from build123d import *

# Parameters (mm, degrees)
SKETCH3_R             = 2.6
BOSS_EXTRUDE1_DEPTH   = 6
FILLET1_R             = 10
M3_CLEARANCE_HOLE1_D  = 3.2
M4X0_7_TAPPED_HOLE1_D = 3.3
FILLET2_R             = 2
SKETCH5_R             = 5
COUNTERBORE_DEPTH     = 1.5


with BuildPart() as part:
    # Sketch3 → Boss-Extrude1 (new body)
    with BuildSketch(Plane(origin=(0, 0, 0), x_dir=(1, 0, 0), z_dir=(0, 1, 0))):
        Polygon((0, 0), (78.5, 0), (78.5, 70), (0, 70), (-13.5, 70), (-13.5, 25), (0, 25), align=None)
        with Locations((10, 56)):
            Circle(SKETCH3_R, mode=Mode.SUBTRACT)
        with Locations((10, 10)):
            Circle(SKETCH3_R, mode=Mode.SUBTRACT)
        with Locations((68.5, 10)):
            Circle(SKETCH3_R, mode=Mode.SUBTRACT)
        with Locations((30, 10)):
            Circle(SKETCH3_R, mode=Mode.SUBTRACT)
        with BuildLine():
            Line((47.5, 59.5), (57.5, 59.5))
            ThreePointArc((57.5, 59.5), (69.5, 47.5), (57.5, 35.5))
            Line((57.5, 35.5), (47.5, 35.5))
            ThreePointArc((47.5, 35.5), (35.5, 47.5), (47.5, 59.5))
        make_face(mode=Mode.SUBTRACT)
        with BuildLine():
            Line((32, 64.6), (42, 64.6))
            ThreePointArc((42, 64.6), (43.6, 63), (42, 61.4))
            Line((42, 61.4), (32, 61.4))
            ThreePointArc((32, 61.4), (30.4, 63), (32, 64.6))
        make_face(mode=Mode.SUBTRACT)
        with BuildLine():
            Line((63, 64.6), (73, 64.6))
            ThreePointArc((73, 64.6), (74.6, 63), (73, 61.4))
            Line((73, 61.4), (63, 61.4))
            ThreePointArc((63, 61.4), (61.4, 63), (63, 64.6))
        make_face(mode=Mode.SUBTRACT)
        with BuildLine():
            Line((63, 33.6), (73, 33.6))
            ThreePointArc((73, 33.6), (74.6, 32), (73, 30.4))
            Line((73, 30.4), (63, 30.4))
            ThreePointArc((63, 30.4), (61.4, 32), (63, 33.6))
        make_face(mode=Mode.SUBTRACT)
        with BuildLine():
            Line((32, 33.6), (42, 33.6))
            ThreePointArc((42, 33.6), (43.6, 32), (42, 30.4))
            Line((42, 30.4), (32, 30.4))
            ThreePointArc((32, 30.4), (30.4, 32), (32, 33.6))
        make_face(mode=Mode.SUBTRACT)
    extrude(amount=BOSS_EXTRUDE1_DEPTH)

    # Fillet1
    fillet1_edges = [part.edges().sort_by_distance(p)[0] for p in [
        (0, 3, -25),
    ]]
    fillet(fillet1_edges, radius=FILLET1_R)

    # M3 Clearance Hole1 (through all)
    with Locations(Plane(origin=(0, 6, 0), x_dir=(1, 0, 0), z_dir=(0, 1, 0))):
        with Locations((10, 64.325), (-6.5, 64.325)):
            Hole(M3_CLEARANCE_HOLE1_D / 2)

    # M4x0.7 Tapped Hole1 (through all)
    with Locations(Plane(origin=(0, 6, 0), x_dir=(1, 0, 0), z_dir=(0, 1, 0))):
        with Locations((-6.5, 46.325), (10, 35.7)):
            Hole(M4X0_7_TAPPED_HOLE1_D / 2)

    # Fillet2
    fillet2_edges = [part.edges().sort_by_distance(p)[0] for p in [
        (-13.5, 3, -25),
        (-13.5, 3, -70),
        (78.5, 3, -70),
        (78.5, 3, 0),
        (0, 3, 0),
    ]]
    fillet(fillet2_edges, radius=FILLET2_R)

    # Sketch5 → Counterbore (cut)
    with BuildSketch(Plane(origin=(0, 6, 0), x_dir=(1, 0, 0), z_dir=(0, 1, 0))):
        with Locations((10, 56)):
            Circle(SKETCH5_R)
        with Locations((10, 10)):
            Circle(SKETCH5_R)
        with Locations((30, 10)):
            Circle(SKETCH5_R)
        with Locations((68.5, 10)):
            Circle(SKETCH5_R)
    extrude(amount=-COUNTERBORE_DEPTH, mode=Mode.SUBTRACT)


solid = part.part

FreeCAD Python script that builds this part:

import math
import FreeCAD as App
import Part
import Sketcher

V = App.Vector
Q = App.Units.Quantity


def edges_at(feature, points):
    """Names of the edges that pass closest to the given points."""
    edges = feature.Shape.Edges
    near = lambda p: min(range(len(edges)), key=lambda i: edges[i].distToShape(Part.Vertex(*p))[0])
    return sorted({f"Edge{near(p) + 1}" for p in points})


def add_polygon(sketch, points):
    """Adds a closed chain of lines whose ends are joined by coincident constraints."""
    first, n = sketch.GeometryCount, len(points)
    for a, b in zip(points, points[1:] + points[:1]):
        sketch.addGeometry(Part.LineSegment(App.Vector(*a, 0), App.Vector(*b, 0)), False)
    for i in range(n):
        sketch.addConstraint(Sketcher.Constraint("Coincident", first + i, 2, first + (i + 1) % n, 1))

doc = App.newDocument("Part")
body = doc.addObject("PartDesign::Body", "Body")

# Sketch on XZ plane
sketch1 = body.newObject("Sketcher::SketchObject", "Sketch")
sketch1.AttachmentSupport = (doc.getObject("XZ_Plane"), [""])
sketch1.MapMode = "FlatFace"
add_polygon(sketch1, [(0, 0), (78.5, 0), (78.5, -70), (-13.5, -70), (-13.5, -25), (0, -25)])  # lines 0-5
sketch1.addGeometry(Part.Circle(V(10, -10, 0), V(0, 0, 1), 2.6), False)  # 6
sketch1.addGeometry(Part.Circle(V(30, -10, 0), V(0, 0, 1), 2.6), False)  # 7
sketch1.addGeometry(Part.ArcOfCircle(Part.Circle(V(32, -32, 0), V(0, 0, 1), 1.6), math.radians(90), math.radians(270)), False)  # 8
sketch1.addGeometry(Part.LineSegment(V(32, -33.6, 0), V(42, -33.6, 0)), False)  # 9
sketch1.addGeometry(Part.ArcOfCircle(Part.Circle(V(42, -32, 0), V(0, 0, 1), 1.6), math.radians(-90), math.radians(90)), False)  # 10
sketch1.addGeometry(Part.LineSegment(V(42, -30.4, 0), V(32, -30.4, 0)), False)  # 11
sketch1.addGeometry(Part.Circle(V(68.5, -10, 0), V(0, 0, 1), 2.6), False)  # 12
sketch1.addGeometry(Part.ArcOfCircle(Part.Circle(V(63, -32, 0), V(0, 0, 1), 1.6), math.radians(90), math.radians(270)), False)  # 13
sketch1.addGeometry(Part.LineSegment(V(63, -33.6, 0), V(73, -33.6, 0)), False)  # 14
sketch1.addGeometry(Part.ArcOfCircle(Part.Circle(V(73, -32, 0), V(0, 0, 1), 1.6), math.radians(-90), math.radians(90)), False)  # 15
sketch1.addGeometry(Part.LineSegment(V(73, -30.4, 0), V(63, -30.4, 0)), False)  # 16
sketch1.addGeometry(Part.Circle(V(10, -56, 0), V(0, 0, 1), 2.6), False)  # 17
sketch1.addGeometry(Part.ArcOfCircle(Part.Circle(V(32, -63, 0), V(0, 0, 1), 1.6), math.radians(90), math.radians(270)), False)  # 18
sketch1.addGeometry(Part.LineSegment(V(32, -64.6, 0), V(42, -64.6, 0)), False)  # 19
sketch1.addGeometry(Part.ArcOfCircle(Part.Circle(V(42, -63, 0), V(0, 0, 1), 1.6), math.radians(-90), math.radians(90)), False)  # 20
sketch1.addGeometry(Part.LineSegment(V(42, -61.4, 0), V(32, -61.4, 0)), False)  # 21
sketch1.addGeometry(Part.ArcOfCircle(Part.Circle(V(47.5, -47.5, 0), V(0, 0, 1), 12), math.radians(90), math.radians(270)), False)  # 22
sketch1.addGeometry(Part.LineSegment(V(47.5, -59.5, 0), V(57.5, -59.5, 0)), False)  # 23
sketch1.addGeometry(Part.ArcOfCircle(Part.Circle(V(57.5, -47.5, 0), V(0, 0, 1), 12), math.radians(-90), math.radians(90)), False)  # 24
sketch1.addGeometry(Part.LineSegment(V(57.5, -35.5, 0), V(47.5, -35.5, 0)), False)  # 25
sketch1.addGeometry(Part.ArcOfCircle(Part.Circle(V(63, -63, 0), V(0, 0, 1), 1.6), math.radians(90), math.radians(270)), False)  # 26
sketch1.addGeometry(Part.LineSegment(V(63, -64.6, 0), V(73, -64.6, 0)), False)  # 27
sketch1.addGeometry(Part.ArcOfCircle(Part.Circle(V(73, -63, 0), V(0, 0, 1), 1.6), math.radians(-90), math.radians(90)), False)  # 28
sketch1.addGeometry(Part.LineSegment(V(73, -61.4, 0), V(63, -61.4, 0)), False)  # 29
sketch1.addConstraint([
    Sketcher.Constraint("Tangent", 8, 2, 9, 1),
    Sketcher.Constraint("Tangent", 9, 2, 10, 1),
    Sketcher.Constraint("Tangent", 10, 2, 11, 1),
    Sketcher.Constraint("Tangent", 11, 2, 8, 1),
    Sketcher.Constraint("Tangent", 13, 2, 14, 1),
    Sketcher.Constraint("Tangent", 14, 2, 15, 1),
    Sketcher.Constraint("Tangent", 15, 2, 16, 1),
    Sketcher.Constraint("Tangent", 16, 2, 13, 1),
    Sketcher.Constraint("Tangent", 18, 2, 19, 1),
    Sketcher.Constraint("Tangent", 19, 2, 20, 1),
    Sketcher.Constraint("Tangent", 20, 2, 21, 1),
    Sketcher.Constraint("Tangent", 21, 2, 18, 1),
    Sketcher.Constraint("Tangent", 22, 2, 23, 1),
    Sketcher.Constraint("Tangent", 23, 2, 24, 1),
    Sketcher.Constraint("Tangent", 24, 2, 25, 1),
    Sketcher.Constraint("Tangent", 25, 2, 22, 1),
    Sketcher.Constraint("Tangent", 26, 2, 27, 1),
    Sketcher.Constraint("Tangent", 27, 2, 28, 1),
    Sketcher.Constraint("Tangent", 28, 2, 29, 1),
    Sketcher.Constraint("Tangent", 29, 2, 26, 1),
    Sketcher.Constraint("Horizontal", 0),
    Sketcher.Constraint("Vertical", 1),
    Sketcher.Constraint("Horizontal", 2),
    Sketcher.Constraint("Vertical", 3),
    Sketcher.Constraint("Horizontal", 4),
    Sketcher.Constraint("Vertical", 5),
    Sketcher.Constraint("Horizontal", 9),
    Sketcher.Constraint("Horizontal", 11),
    Sketcher.Constraint("Horizontal", 14),
    Sketcher.Constraint("Horizontal", 16),
    Sketcher.Constraint("Horizontal", 19),
    Sketcher.Constraint("Horizontal", 21),
    Sketcher.Constraint("Horizontal", 23),
    Sketcher.Constraint("Horizontal", 25),
    Sketcher.Constraint("Horizontal", 27),
    Sketcher.Constraint("Horizontal", 29),
    Sketcher.Constraint("Coincident", 5, 2, -1, 1),
    Sketcher.Constraint("Equal", 6, 7),
    Sketcher.Constraint("Equal", 7, 12),
    Sketcher.Constraint("Equal", 10, 13),
    Sketcher.Constraint("Equal", 12, 17),
    Sketcher.Constraint("Equal", 15, 18),
    Sketcher.Constraint("Equal", 20, 26),
    Sketcher.Constraint("Horizontal", 6, 3, 7, 3),
    Sketcher.Constraint("Horizontal", 7, 3, 12, 3),
    Sketcher.Constraint("Horizontal", 10, 3, 13, 3),
    Sketcher.Constraint("Horizontal", 20, 3, 26, 3),
    Sketcher.Constraint("Vertical", 6, 3, 17, 3),
    Sketcher.Constraint("Vertical", 8, 3, 18, 3),
    Sketcher.Constraint("Vertical", 10, 3, 20, 3),
    Sketcher.Constraint("Vertical", 13, 3, 26, 3),
    Sketcher.Constraint("Vertical", 15, 3, 28, 3),
    Sketcher.Constraint("Equal", 11, 14),
    Sketcher.Constraint("Equal", 21, 23),
    Sketcher.Constraint("Radius", 22, Q("12 mm")),
    Sketcher.Constraint("Diameter", 6, Q("5.2 mm")),
    Sketcher.Constraint("Radius", 8, Q("1.6 mm")),
    Sketcher.Constraint("DistanceX", 2, 2, 2, 1, Q("92 mm")),
    Sketcher.Constraint("DistanceX", 9, 1, 9, 2, Q("10 mm")),
    Sketcher.Constraint("DistanceY", 1, 2, 1, 1, Q("70 mm")),
    Sketcher.Constraint("DistanceY", 3, 1, 3, 2, Q("45 mm")),
    Sketcher.Constraint("DistanceX", 0, 1, 0, 2, Q("78.5 mm")),
    Sketcher.Constraint("DistanceX", -1, 1, 6, 3, Q("10 mm")),
    Sketcher.Constraint("DistanceY", 6, 3, -1, 1, Q("10 mm")),
    Sketcher.Constraint("DistanceX", -1, 1, 7, 3, Q("30 mm")),
    Sketcher.Constraint("DistanceX", -1, 1, 8, 3, Q("32 mm")),
    Sketcher.Constraint("DistanceY", 8, 3, -1, 1, Q("32 mm")),
    Sketcher.Constraint("DistanceX", -1, 1, 13, 3, Q("63 mm")),
    Sketcher.Constraint("DistanceY", 17, 3, -1, 1, Q("56 mm")),
    Sketcher.Constraint("DistanceY", 18, 3, -1, 1, Q("63 mm")),
    Sketcher.Constraint("DistanceX", 12, 3, 0, 2, Q("10 mm")),
    Sketcher.Constraint("DistanceX", 24, 3, 1, 2, Q("21 mm")),
    Sketcher.Constraint("DistanceY", 22, 3, -1, 1, Q("47.5 mm")),
])
pad1 = body.newObject("PartDesign::Pad", "Pad")
pad1.Profile = sketch1
pad1.Length = 6
pad1.Reversed = True
doc.recompute()

fillet = body.newObject("PartDesign::Fillet", "Fillet")
fillet.Base = (pad1, edges_at(pad1, [(0, 3, -25)]))
fillet.Radius = 10

# Sketch on XZ plane
sketch2 = body.newObject("Sketcher::SketchObject", "Sketch001")
sketch2.AttachmentSupport = (doc.getObject("XZ_Plane"), [""])
sketch2.MapMode = "FlatFace"
sketch2.AttachmentOffset = App.Placement(V(0, 0, -6), App.Rotation())
sketch2.addGeometry([
    Part.Circle(V(10, -64.325, 0), V(0, 0, 1), 1.6),
    Part.Circle(V(-6.5, -64.325, 0), V(0, 0, 1), 1.6),
], False)
sketch2.addConstraint([
    Sketcher.Constraint("Equal", 0, 1),
    Sketcher.Constraint("Horizontal", 0, 3, 1, 3),
    Sketcher.Constraint("Diameter", 0, Q("3.2 mm")),
    Sketcher.Constraint("DistanceX", -1, 1, 0, 3, Q("10 mm")),
    Sketcher.Constraint("DistanceX", 1, 3, -1, 1, Q("6.5 mm")),
    Sketcher.Constraint("DistanceY", 0, 3, -1, 1, Q("64.325 mm")),
])
doc.recompute()
hole = body.newObject("PartDesign::Hole", "Hole")
hole.Profile = sketch2
hole.ThreadType = "None"
hole.Diameter = 3.2
hole.DepthType = "ThroughAll"
hole.Reversed = True

# Sketch on XZ plane
sketch3 = body.newObject("Sketcher::SketchObject", "Sketch002")
sketch3.AttachmentSupport = (doc.getObject("XZ_Plane"), [""])
sketch3.MapMode = "FlatFace"
sketch3.AttachmentOffset = App.Placement(V(0, 0, -6), App.Rotation())
sketch3.addGeometry([
    Part.Circle(V(-6.5, -46.325, 0), V(0, 0, 1), 1.65),
    Part.Circle(V(10, -35.7, 0), V(0, 0, 1), 1.65),
], False)
sketch3.addConstraint([
    Sketcher.Constraint("Equal", 0, 1),
    Sketcher.Constraint("Diameter", 0, Q("3.3 mm")),
    Sketcher.Constraint("DistanceX", -1, 1, 1, 3, Q("10 mm")),
    Sketcher.Constraint("DistanceX", 0, 3, -1, 1, Q("6.5 mm")),
    Sketcher.Constraint("DistanceY", 1, 3, -1, 1, Q("35.7 mm")),
    Sketcher.Constraint("DistanceY", 0, 3, -1, 1, Q("46.325 mm")),
])
doc.recompute()
hole2 = body.newObject("PartDesign::Hole", "Hole001")
hole2.Profile = sketch3
hole2.ThreadType = "None"
hole2.Diameter = 3.3
hole2.DepthType = "ThroughAll"
hole2.Reversed = True
doc.recompute()

fillet2 = body.newObject("PartDesign::Fillet", "Fillet001")
fillet2.Base = (hole2, edges_at(hole2, [
    (-13.5, 3, -25),
    (-13.5, 3, -70),
    (78.5, 3, -70),
    (78.5, 3, 0),
    (0, 3, 0),
]))
fillet2.Radius = 2

# Sketch on XZ plane
sketch4 = body.newObject("Sketcher::SketchObject", "Sketch003")
sketch4.AttachmentSupport = (doc.getObject("XZ_Plane"), [""])
sketch4.MapMode = "FlatFace"
sketch4.AttachmentOffset = App.Placement(V(0, 0, -6), App.Rotation())
sketch4.addGeometry([
    Part.Circle(V(10, -56, 0), V(0, 0, 1), 5),
    Part.Circle(V(10, -10, 0), V(0, 0, 1), 5),
    Part.Circle(V(30, -10, 0), V(0, 0, 1), 5),
    Part.Circle(V(68.5, -10, 0), V(0, 0, 1), 5),
], False)
sketch4.addConstraint([
    Sketcher.Constraint("Equal", 0, 1),
    Sketcher.Constraint("Equal", 1, 2),
    Sketcher.Constraint("Equal", 2, 3),
    Sketcher.Constraint("Horizontal", 1, 3, 2, 3),
    Sketcher.Constraint("Horizontal", 2, 3, 3, 3),
    Sketcher.Constraint("Vertical", 0, 3, 1, 3),
    Sketcher.Constraint("Diameter", 0, Q("10 mm")),
    Sketcher.Constraint("DistanceX", -1, 1, 0, 3, Q("10 mm")),
    Sketcher.Constraint("DistanceY", 0, 3, -1, 1, Q("56 mm")),
    Sketcher.Constraint("DistanceY", 1, 3, -1, 1, Q("10 mm")),
    Sketcher.Constraint("DistanceX", -1, 1, 2, 3, Q("30 mm")),
    Sketcher.Constraint("DistanceX", -1, 1, 3, 3, Q("68.5 mm")),
])
pocket1 = body.newObject("PartDesign::Pocket", "Pocket")
pocket1.Profile = sketch4
pocket1.Length = 1.5
pocket1.Reversed = True

doc.recompute()
